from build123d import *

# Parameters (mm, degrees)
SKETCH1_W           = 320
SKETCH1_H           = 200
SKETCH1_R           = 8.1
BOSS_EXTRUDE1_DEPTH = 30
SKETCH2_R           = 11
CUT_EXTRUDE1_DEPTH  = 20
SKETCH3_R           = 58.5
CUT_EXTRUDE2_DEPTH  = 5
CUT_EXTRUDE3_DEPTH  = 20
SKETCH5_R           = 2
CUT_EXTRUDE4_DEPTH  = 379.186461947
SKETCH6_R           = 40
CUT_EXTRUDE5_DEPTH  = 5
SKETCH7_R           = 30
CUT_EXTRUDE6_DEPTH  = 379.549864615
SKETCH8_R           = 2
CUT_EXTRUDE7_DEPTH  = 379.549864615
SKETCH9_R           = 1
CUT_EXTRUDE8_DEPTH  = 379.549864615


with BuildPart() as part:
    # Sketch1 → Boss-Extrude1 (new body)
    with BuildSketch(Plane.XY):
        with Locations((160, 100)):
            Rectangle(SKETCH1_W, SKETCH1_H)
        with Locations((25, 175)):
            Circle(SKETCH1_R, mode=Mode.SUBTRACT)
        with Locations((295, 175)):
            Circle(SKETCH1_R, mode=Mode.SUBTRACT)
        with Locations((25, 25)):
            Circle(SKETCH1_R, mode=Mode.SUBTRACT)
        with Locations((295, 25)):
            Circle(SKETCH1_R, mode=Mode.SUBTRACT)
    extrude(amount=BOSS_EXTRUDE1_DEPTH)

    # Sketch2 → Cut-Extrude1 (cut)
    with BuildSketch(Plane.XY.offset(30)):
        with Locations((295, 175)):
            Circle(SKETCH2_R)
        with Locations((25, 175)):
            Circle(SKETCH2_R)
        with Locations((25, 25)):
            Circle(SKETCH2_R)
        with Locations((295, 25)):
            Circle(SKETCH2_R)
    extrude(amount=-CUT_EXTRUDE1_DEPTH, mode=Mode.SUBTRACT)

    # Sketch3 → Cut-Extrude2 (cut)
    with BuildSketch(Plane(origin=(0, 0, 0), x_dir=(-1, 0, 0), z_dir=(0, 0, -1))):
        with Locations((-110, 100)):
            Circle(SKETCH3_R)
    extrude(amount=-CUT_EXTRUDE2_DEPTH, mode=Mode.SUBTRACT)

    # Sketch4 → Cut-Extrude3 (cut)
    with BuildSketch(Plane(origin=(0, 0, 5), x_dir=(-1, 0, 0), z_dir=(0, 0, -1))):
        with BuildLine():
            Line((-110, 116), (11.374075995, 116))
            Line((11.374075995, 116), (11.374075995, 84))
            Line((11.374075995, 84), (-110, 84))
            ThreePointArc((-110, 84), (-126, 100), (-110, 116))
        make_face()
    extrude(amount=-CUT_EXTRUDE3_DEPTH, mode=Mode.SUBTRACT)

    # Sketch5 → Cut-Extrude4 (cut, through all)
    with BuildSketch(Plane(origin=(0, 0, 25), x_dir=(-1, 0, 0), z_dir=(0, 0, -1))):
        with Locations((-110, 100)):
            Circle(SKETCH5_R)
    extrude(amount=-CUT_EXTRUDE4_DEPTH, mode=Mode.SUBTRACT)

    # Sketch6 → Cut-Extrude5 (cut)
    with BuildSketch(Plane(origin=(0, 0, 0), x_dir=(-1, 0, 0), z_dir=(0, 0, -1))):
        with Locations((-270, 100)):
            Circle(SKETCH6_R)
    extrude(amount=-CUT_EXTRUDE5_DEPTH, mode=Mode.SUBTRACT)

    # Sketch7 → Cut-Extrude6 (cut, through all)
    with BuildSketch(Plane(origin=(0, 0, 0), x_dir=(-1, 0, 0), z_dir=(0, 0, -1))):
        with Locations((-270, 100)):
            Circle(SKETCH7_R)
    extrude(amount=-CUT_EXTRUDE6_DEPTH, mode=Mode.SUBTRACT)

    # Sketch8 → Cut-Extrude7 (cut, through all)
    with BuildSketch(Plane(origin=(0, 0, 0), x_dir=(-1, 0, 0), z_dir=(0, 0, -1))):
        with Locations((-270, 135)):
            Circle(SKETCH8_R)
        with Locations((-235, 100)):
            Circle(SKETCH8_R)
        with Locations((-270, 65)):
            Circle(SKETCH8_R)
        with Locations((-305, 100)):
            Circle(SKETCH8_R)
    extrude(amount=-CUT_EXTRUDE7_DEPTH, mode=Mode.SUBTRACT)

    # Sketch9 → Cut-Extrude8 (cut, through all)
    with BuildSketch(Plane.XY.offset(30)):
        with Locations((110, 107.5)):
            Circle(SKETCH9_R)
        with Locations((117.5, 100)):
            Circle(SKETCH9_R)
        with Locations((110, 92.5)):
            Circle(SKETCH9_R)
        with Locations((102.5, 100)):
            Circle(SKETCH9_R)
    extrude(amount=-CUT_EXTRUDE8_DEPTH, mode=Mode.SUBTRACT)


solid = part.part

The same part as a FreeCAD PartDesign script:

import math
import FreeCAD as App
import Part
import Sketcher

V = App.Vector
Q = App.Units.Quantity

doc = App.newDocument("Part")
body = doc.addObject("PartDesign::Body", "Body")

sketch1 = body.newObject("Sketcher::SketchObject", "Sketch")
sketch1.AttachmentSupport = (doc.getObject("XY_Plane"), [""])
sketch1.MapMode = "FlatFace"
sketch1.addGeometry([
    Part.LineSegment(V(0, 200, 0), V(0, 0, 0)),
    Part.LineSegment(V(0, 0, 0), V(320, 0, 0)),
    Part.LineSegment(V(320, 0, 0), V(320, 200, 0)),
    Part.LineSegment(V(320, 200, 0), V(0, 200, 0)),
    Part.Circle(V(25, 25, 0), V(0, 0, 1), 8),
    Part.Circle(V(295, 25, 0), V(0, 0, 1), 8),
    Part.Circle(V(25, 175, 0), V(0, 0, 1), 8),
    Part.Circle(V(295, 175, 0), V(0, 0, 1), 8),
], False)
sketch1.addConstraint([
    Sketcher.Constraint("Coincident", 0, 2, 1, 1),
    Sketcher.Constraint("Coincident", 1, 2, 2, 1),
    Sketcher.Constraint("Coincident", 2, 2, 3, 1),
    Sketcher.Constraint("Coincident", 3, 2, 0, 1),
    Sketcher.Constraint("Vertical", 0),
    Sketcher.Constraint("Horizontal", 1),
    Sketcher.Constraint("Vertical", 2),
    Sketcher.Constraint("Horizontal", 3),
    Sketcher.Constraint("Coincident", 0, 2, -1, 1),
    Sketcher.Constraint("Equal", 4, 5),
    Sketcher.Constraint("Equal", 5, 6),
    Sketcher.Constraint("Equal", 6, 7),
    Sketcher.Constraint("Horizontal", 4, 3, 5, 3),
    Sketcher.Constraint("Horizontal", 6, 3, 7, 3),
    Sketcher.Constraint("Vertical", 4, 3, 6, 3),
    Sketcher.Constraint("Vertical", 5, 3, 7, 3),
    Sketcher.Constraint("Diameter", 4, Q("16.2 mm")),
    Sketcher.Constraint("DistanceX", 1, 1, 1, 2, Q("320 mm")),
    Sketcher.Constraint("DistanceY", 0, 2, 0, 1, Q("200 mm")),
    Sketcher.Constraint("DistanceX", -1, 1, 4, 3, Q("25 mm")),
    Sketcher.Constraint("DistanceY", -1, 1, 4, 3, Q("25 mm")),
    Sketcher.Constraint("DistanceX", -1, 1, 5, 3, Q("295 mm")),
    Sketcher.Constraint("DistanceY", -1, 1, 6, 3, Q("175 mm")),
])
pad1 = body.newObject("PartDesign::Pad", "Pad")
pad1.Profile = sketch1
pad1.Length = 30

sketch2 = body.newObject("Sketcher::SketchObject", "Sketch001")
sketch2.AttachmentSupport = (doc.getObject("XY_Plane"), [""])
sketch2.MapMode = "FlatFace"
sketch2.AttachmentOffset = App.Placement(V(0, 0, 30), App.Rotation())
sketch2.addGeometry([
    Part.Circle(V(295, 175, 0), V(0, 0, 1), 11),
    Part.Circle(V(25, 175, 0), V(0, 0, 1), 11),
    Part.Circle(V(25, 25, 0), V(0, 0, 1), 11),
    Part.Circle(V(295, 25, 0), V(0, 0, 1), 11),
], False)
sketch2.addConstraint([
    Sketcher.Constraint("Equal", 0, 1),
    Sketcher.Constraint("Equal", 1, 2),
    Sketcher.Constraint("Equal", 2, 3),
    Sketcher.Constraint("Horizontal", 0, 3, 1, 3),
    Sketcher.Constraint("Horizontal", 2, 3, 3, 3),
    Sketcher.Constraint("Vertical", 1, 3, 2, 3),
    Sketcher.Constraint("Vertical", 0, 3, 3, 3),
    Sketcher.Constraint("Diameter", 0, Q("22 mm")),
    Sketcher.Constraint("DistanceX", -1, 1, 0, 3, Q("295 mm")),
    Sketcher.Constraint("DistanceY", -1, 1, 0, 3, Q("175 mm")),
    Sketcher.Constraint("DistanceX", -1, 1, 1, 3, Q("25 mm")),
    Sketcher.Constraint("DistanceY", -1, 1, 2, 3, Q("25 mm")),
])
pocket1 = body.newObject("PartDesign::Pocket", "Pocket")
pocket1.Profile = sketch2
pocket1.Length = 20

sketch3 = body.newObject("Sketcher::SketchObject", "Sketch002")
sketch3.AttachmentSupport = (doc.getObject("XY_Plane"), [""])
sketch3.MapMode = "FlatFace"
sketch3.addGeometry(Part.Circle(V(110, 100, 0), V(0, 0, 1), 58), False)
sketch3.addConstraint([
    Sketcher.Constraint("Diameter", 0, Q("117 mm")),
    Sketcher.Constraint("DistanceX", -1, 1, 0, 3, Q("110 mm")),
    Sketcher.Constraint("DistanceY", -1, 1, 0, 3, Q("100 mm")),
])
pocket2 = body.newObject("PartDesign::Pocket", "Pocket001")
pocket2.Profile = sketch3
pocket2.Length = 5
pocket2.Reversed = True

sketch4 = body.newObject("Sketcher::SketchObject", "Sketch003")
sketch4.AttachmentSupport = (doc.getObject("XY_Plane"), [""])
sketch4.MapMode = "FlatFace"
sketch4.AttachmentOffset = App.Placement(V(0, 0, 5), App.Rotation())
sketch4.addGeometry([
    Part.LineSegment(V(-11, 116, 0), V(110, 116, 0)),
    Part.ArcOfCircle(Part.Circle(V(110, 100, 0), V(0, 0, 1), 16), math.radians(-90), math.radians(90)),
    Part.LineSegment(V(110, 84, 0), V(-11, 84, 0)),
    Part.LineSegment(V(-11, 84, 0), V(-11, 116, 0)),
], False)
sketch4.addConstraint([
    Sketcher.Constraint("Tangent", 0, 2, 1, 2),
    Sketcher.Constraint("Tangent", 1, 1, 2, 1),
    Sketcher.Constraint("Coincident", 2, 2, 3, 1),
    Sketcher.Constraint("Coincident", 3, 2, 0, 1),
    Sketcher.Constraint("Horizontal", 0),
    Sketcher.Constraint("Horizontal", 2),
    Sketcher.Constraint("Vertical", 3),
    Sketcher.Constraint("Radius", 1, Q("16 mm")),
    Sketcher.Constraint("DistanceX", -1, 1, 1, 3, Q("110 mm")),
    Sketcher.Constraint("DistanceY", -1, 1, 1, 3, Q("100 mm")),
    Sketcher.Constraint("DistanceX", 0, 1, 0, 2, Q("121.374076 mm")),
])
pocket3 = body.newObject("PartDesign::Pocket", "Pocket002")
pocket3.Profile = sketch4
pocket3.Length = 20
pocket3.Reversed = True

sketch5 = body.newObject("Sketcher::SketchObject", "Sketch004")
sketch5.AttachmentSupport = (doc.getObject("XY_Plane"), [""])
sketch5.MapMode = "FlatFace"
sketch5.AttachmentOffset = App.Placement(V(0, 0, 25), App.Rotation())
sketch5.addGeometry(Part.Circle(V(110, 100, 0), V(0, 0, 1), 2), False)
sketch5.addConstraint([
    Sketcher.Constraint("Diameter", 0, Q("4 mm")),
    Sketcher.Constraint("DistanceX", -1, 1, 0, 3, Q("110 mm")),
    Sketcher.Constraint("DistanceY", -1, 1, 0, 3, Q("100 mm")),
])
pocket4 = body.newObject("PartDesign::Pocket", "Pocket003")
pocket4.Profile = sketch5
pocket4.Type = "ThroughAll"
pocket4.Reversed = True

sketch6 = body.newObject("Sketcher::SketchObject", "Sketch005")
sketch6.AttachmentSupport = (doc.getObject("XY_Plane"), [""])
sketch6.MapMode = "FlatFace"
sketch6.addGeometry(Part.Circle(V(270, 100, 0), V(0, 0, 1), 40), False)
sketch6.addConstraint([
    Sketcher.Constraint("Diameter", 0, Q("80 mm")),
    Sketcher.Constraint("DistanceX", -1, 1, 0, 3, Q("270 mm")),
    Sketcher.Constraint("DistanceY", -1, 1, 0, 3, Q("100 mm")),
])
pocket5 = body.newObject("PartDesign::Pocket", "Pocket004")
pocket5.Profile = sketch6
pocket5.Length = 5
pocket5.Reversed = True

sketch7 = body.newObject("Sketcher::SketchObject", "Sketch006")
sketch7.AttachmentSupport = (doc.getObject("XY_Plane"), [""])
sketch7.MapMode = "FlatFace"
sketch7.addGeometry(Part.Circle(V(270, 100, 0), V(0, 0, 1), 30), False)
sketch7.addConstraint([
    Sketcher.Constraint("Diameter", 0, Q("60 mm")),
    Sketcher.Constraint("DistanceX", -1, 1, 0, 3, Q("270 mm")),
    Sketcher.Constraint("DistanceY", -1, 1, 0, 3, Q("100 mm")),
])
pocket6 = body.newObject("PartDesign::Pocket", "Pocket005")
pocket6.Profile = sketch7
pocket6.Type = "ThroughAll"
pocket6.Reversed = True

sketch8 = body.newObject("Sketcher::SketchObject", "Sketch007")
sketch8.AttachmentSupport = (doc.getObject("XY_Plane"), [""])
sketch8.MapMode = "FlatFace"
sketch8.addGeometry([
    Part.Circle(V(270, 135, 0), V(0, 0, 1), 2),
    Part.Circle(V(235, 100, 0), V(0, 0, 1), 2),
    Part.Circle(V(270, 65, 0), V(0, 0, 1), 2),
    Part.Circle(V(305, 100, 0), V(0, 0, 1), 2),
], False)
sketch8.addConstraint([
    Sketcher.Constraint("Equal", 0, 1),
    Sketcher.Constraint("Equal", 1, 2),
    Sketcher.Constraint("Equal", 2, 3),
    Sketcher.Constraint("Horizontal", 1, 3, 3, 3),
    Sketcher.Constraint("Vertical", 0, 3, 2, 3),
    Sketcher.Constraint("Diameter", 0, Q("4 mm")),
    Sketcher.Constraint("DistanceX", -1, 1, 0, 3, Q("270 mm")),
    Sketcher.Constraint("DistanceY", -1, 1, 0, 3, Q("135 mm")),
    Sketcher.Constraint("DistanceX", -1, 1, 1, 3, Q("235 mm")),
    Sketcher.Constraint("DistanceY", -1, 1, 1, 3, Q("100 mm")),
    Sketcher.Constraint("DistanceY", -1, 1, 2, 3, Q("65 mm")),
    Sketcher.Constraint("DistanceX", -1, 1, 3, 3, Q("305 mm")),
])
pocket7 = body.newObject("PartDesign::Pocket", "Pocket006")
pocket7.Profile = sketch8
pocket7.Type = "ThroughAll"
pocket7.Reversed = True

sketch9 = body.newObject("Sketcher::SketchObject", "Sketch008")
sketch9.AttachmentSupport = (doc.getObject("XY_Plane"), [""])
sketch9.MapMode = "FlatFace"
sketch9.AttachmentOffset = App.Placement(V(0, 0, 30), App.Rotation())
sketch9.addGeometry([
    Part.Circle(V(110, 107.5, 0), V(0, 0, 1), 1),
    Part.Circle(V(117.5, 100, 0), V(0, 0, 1), 1),
    Part.Circle(V(110, 92.5, 0), V(0, 0, 1), 1),
    Part.Circle(V(102.5, 100, 0), V(0, 0, 1), 1),
], False)
sketch9.addConstraint([
    Sketcher.Constraint("Equal", 0, 1),
    Sketcher.Constraint("Equal", 1, 2),
    Sketcher.Constraint("Equal", 2, 3),
    Sketcher.Constraint("Horizontal", 1, 3, 3, 3),
    Sketcher.Constraint("Vertical", 0, 3, 2, 3),
    Sketcher.Constraint("Diameter", 0, Q("2 mm")),
    Sketcher.Constraint("DistanceX", -1, 1, 0, 3, Q("110 mm")),
    Sketcher.Constraint("DistanceY", -1, 1, 1, 3, Q("100 mm")),
    Sketcher.Constraint("DistanceY", 2, 3, 0, 3, Q("15 mm")),
    Sketcher.Constraint("DistanceX", 3, 3, 1, 3, Q("15 mm")),
    Sketcher.Constraint("DistanceY", -1, 1, 0, 3, Q("107.5 mm")),
    Sketcher.Constraint("DistanceX", -1, 1, 1, 3, Q("117.5 mm")),
])
pocket8 = body.newObject("PartDesign::Pocket", "Pocket007")
pocket8.Profile = sketch9
pocket8.Type = "ThroughAll"

doc.recompute()
